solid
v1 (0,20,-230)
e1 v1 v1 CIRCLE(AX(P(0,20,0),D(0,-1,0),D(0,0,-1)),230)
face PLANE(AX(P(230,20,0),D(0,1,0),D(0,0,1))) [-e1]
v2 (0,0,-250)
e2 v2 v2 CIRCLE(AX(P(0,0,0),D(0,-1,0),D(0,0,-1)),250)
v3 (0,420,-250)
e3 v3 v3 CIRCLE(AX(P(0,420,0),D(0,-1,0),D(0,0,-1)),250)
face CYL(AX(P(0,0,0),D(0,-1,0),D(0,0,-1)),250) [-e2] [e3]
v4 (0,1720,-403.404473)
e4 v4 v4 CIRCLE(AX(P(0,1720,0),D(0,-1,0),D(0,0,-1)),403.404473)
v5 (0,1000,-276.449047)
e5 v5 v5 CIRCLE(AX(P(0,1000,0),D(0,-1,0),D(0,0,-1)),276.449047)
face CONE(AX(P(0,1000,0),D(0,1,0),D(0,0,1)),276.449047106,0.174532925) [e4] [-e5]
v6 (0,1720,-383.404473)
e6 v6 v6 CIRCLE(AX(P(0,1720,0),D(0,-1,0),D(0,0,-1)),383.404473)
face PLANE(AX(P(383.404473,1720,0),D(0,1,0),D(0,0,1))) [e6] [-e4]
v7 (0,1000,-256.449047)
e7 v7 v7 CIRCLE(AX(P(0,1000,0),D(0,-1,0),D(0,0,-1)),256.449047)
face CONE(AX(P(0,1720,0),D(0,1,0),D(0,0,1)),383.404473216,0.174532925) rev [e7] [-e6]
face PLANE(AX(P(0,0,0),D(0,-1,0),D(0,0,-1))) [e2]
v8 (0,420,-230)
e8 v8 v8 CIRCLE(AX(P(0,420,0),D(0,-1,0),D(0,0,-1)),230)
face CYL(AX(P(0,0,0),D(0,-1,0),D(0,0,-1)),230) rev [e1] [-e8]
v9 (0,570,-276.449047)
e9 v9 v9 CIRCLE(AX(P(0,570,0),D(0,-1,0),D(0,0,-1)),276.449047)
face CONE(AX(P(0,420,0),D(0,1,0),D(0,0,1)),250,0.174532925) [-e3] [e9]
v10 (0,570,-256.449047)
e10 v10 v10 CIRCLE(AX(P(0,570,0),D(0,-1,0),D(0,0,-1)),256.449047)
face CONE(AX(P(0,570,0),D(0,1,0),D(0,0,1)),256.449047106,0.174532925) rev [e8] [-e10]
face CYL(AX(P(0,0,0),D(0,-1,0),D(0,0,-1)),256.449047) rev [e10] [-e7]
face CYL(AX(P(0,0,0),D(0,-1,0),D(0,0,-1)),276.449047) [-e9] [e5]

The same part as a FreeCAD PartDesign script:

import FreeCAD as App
import Part
import Sketcher
Q = App.Units.Quantity


def add_polygon(sketch, points):
    """Adds a closed chain of lines whose ends are joined by coincident constraints."""
    first, n = sketch.GeometryCount, len(points)
    for a, b in zip(points, points[1:] + points[:1]):
        sketch.addGeometry(Part.LineSegment(App.Vector(*a, 0), App.Vector(*b, 0)), False)
    for i in range(n):
        sketch.addConstraint(Sketcher.Constraint("Coincident", first + i, 2, first + (i + 1) % n, 1))

doc = App.newDocument("Part")
body = doc.addObject("PartDesign::Body", "Body")

sketch1 = body.newObject("Sketcher::SketchObject", "Sketch")
sketch1.AttachmentSupport = (doc.getObject("XY_Plane"), [""])
sketch1.MapMode = "FlatFace"
add_polygon(sketch1, [(0, 0), (250, 0), (250, 420), (276, 570), (276, 1000), (403, 1720), (383, 1720), (256, 1000), (256, 570), (230, 420), (230, 20), (0, 20)])
sketch1.addConstraint([
    Sketcher.Constraint("Horizontal", 0),
    Sketcher.Constraint("Vertical", 1),
    Sketcher.Constraint("Vertical", 3),
    Sketcher.Constraint("Horizontal", 5),
    Sketcher.Constraint("Vertical", 7),
    Sketcher.Constraint("Vertical", 9),
    Sketcher.Constraint("Horizontal", 10),
    Sketcher.Constraint("Vertical", 11),
    Sketcher.Constraint("Coincident", 11, 2, -1, 1),
    Sketcher.Constraint("Parallel", 2, 4),
    Sketcher.Constraint("Parallel", 4, 6),
    Sketcher.Constraint("Parallel", 6, 8),
    Sketcher.Constraint("Horizontal", 3, 2, 6, 2),
    Sketcher.Constraint("Horizontal", 2, 2, 7, 2),
    Sketcher.Constraint("Horizontal", 1, 2, 8, 2),
    Sketcher.Constraint("Equal", 5, 11),
    Sketcher.Constraint("DistanceX", 0, 1, 0, 2, 250.0),
    Sketcher.Constraint("DistanceX", 5, 2, 5, 1, 20.0),
    Sketcher.Constraint("DistanceY", 1, 1, 1, 2, 420.0),
    Sketcher.Constraint("DistanceY", 3, 1, 3, 2, 430.0),
    Sketcher.Constraint("Angle", 2, Q("80 deg")),
    Sketcher.Constraint("DistanceY", -1, 1, 2, 2, 570.0),
    Sketcher.Constraint("DistanceY", -1, 1, 4, 2, 1720.0),
])
revolution = body.newObject("PartDesign::Revolution", "Revolution")
revolution.Profile = sketch1
revolution.ReferenceAxis = (sketch1, ["V_Axis"])
revolution.Angle = 360

doc.recompute()
